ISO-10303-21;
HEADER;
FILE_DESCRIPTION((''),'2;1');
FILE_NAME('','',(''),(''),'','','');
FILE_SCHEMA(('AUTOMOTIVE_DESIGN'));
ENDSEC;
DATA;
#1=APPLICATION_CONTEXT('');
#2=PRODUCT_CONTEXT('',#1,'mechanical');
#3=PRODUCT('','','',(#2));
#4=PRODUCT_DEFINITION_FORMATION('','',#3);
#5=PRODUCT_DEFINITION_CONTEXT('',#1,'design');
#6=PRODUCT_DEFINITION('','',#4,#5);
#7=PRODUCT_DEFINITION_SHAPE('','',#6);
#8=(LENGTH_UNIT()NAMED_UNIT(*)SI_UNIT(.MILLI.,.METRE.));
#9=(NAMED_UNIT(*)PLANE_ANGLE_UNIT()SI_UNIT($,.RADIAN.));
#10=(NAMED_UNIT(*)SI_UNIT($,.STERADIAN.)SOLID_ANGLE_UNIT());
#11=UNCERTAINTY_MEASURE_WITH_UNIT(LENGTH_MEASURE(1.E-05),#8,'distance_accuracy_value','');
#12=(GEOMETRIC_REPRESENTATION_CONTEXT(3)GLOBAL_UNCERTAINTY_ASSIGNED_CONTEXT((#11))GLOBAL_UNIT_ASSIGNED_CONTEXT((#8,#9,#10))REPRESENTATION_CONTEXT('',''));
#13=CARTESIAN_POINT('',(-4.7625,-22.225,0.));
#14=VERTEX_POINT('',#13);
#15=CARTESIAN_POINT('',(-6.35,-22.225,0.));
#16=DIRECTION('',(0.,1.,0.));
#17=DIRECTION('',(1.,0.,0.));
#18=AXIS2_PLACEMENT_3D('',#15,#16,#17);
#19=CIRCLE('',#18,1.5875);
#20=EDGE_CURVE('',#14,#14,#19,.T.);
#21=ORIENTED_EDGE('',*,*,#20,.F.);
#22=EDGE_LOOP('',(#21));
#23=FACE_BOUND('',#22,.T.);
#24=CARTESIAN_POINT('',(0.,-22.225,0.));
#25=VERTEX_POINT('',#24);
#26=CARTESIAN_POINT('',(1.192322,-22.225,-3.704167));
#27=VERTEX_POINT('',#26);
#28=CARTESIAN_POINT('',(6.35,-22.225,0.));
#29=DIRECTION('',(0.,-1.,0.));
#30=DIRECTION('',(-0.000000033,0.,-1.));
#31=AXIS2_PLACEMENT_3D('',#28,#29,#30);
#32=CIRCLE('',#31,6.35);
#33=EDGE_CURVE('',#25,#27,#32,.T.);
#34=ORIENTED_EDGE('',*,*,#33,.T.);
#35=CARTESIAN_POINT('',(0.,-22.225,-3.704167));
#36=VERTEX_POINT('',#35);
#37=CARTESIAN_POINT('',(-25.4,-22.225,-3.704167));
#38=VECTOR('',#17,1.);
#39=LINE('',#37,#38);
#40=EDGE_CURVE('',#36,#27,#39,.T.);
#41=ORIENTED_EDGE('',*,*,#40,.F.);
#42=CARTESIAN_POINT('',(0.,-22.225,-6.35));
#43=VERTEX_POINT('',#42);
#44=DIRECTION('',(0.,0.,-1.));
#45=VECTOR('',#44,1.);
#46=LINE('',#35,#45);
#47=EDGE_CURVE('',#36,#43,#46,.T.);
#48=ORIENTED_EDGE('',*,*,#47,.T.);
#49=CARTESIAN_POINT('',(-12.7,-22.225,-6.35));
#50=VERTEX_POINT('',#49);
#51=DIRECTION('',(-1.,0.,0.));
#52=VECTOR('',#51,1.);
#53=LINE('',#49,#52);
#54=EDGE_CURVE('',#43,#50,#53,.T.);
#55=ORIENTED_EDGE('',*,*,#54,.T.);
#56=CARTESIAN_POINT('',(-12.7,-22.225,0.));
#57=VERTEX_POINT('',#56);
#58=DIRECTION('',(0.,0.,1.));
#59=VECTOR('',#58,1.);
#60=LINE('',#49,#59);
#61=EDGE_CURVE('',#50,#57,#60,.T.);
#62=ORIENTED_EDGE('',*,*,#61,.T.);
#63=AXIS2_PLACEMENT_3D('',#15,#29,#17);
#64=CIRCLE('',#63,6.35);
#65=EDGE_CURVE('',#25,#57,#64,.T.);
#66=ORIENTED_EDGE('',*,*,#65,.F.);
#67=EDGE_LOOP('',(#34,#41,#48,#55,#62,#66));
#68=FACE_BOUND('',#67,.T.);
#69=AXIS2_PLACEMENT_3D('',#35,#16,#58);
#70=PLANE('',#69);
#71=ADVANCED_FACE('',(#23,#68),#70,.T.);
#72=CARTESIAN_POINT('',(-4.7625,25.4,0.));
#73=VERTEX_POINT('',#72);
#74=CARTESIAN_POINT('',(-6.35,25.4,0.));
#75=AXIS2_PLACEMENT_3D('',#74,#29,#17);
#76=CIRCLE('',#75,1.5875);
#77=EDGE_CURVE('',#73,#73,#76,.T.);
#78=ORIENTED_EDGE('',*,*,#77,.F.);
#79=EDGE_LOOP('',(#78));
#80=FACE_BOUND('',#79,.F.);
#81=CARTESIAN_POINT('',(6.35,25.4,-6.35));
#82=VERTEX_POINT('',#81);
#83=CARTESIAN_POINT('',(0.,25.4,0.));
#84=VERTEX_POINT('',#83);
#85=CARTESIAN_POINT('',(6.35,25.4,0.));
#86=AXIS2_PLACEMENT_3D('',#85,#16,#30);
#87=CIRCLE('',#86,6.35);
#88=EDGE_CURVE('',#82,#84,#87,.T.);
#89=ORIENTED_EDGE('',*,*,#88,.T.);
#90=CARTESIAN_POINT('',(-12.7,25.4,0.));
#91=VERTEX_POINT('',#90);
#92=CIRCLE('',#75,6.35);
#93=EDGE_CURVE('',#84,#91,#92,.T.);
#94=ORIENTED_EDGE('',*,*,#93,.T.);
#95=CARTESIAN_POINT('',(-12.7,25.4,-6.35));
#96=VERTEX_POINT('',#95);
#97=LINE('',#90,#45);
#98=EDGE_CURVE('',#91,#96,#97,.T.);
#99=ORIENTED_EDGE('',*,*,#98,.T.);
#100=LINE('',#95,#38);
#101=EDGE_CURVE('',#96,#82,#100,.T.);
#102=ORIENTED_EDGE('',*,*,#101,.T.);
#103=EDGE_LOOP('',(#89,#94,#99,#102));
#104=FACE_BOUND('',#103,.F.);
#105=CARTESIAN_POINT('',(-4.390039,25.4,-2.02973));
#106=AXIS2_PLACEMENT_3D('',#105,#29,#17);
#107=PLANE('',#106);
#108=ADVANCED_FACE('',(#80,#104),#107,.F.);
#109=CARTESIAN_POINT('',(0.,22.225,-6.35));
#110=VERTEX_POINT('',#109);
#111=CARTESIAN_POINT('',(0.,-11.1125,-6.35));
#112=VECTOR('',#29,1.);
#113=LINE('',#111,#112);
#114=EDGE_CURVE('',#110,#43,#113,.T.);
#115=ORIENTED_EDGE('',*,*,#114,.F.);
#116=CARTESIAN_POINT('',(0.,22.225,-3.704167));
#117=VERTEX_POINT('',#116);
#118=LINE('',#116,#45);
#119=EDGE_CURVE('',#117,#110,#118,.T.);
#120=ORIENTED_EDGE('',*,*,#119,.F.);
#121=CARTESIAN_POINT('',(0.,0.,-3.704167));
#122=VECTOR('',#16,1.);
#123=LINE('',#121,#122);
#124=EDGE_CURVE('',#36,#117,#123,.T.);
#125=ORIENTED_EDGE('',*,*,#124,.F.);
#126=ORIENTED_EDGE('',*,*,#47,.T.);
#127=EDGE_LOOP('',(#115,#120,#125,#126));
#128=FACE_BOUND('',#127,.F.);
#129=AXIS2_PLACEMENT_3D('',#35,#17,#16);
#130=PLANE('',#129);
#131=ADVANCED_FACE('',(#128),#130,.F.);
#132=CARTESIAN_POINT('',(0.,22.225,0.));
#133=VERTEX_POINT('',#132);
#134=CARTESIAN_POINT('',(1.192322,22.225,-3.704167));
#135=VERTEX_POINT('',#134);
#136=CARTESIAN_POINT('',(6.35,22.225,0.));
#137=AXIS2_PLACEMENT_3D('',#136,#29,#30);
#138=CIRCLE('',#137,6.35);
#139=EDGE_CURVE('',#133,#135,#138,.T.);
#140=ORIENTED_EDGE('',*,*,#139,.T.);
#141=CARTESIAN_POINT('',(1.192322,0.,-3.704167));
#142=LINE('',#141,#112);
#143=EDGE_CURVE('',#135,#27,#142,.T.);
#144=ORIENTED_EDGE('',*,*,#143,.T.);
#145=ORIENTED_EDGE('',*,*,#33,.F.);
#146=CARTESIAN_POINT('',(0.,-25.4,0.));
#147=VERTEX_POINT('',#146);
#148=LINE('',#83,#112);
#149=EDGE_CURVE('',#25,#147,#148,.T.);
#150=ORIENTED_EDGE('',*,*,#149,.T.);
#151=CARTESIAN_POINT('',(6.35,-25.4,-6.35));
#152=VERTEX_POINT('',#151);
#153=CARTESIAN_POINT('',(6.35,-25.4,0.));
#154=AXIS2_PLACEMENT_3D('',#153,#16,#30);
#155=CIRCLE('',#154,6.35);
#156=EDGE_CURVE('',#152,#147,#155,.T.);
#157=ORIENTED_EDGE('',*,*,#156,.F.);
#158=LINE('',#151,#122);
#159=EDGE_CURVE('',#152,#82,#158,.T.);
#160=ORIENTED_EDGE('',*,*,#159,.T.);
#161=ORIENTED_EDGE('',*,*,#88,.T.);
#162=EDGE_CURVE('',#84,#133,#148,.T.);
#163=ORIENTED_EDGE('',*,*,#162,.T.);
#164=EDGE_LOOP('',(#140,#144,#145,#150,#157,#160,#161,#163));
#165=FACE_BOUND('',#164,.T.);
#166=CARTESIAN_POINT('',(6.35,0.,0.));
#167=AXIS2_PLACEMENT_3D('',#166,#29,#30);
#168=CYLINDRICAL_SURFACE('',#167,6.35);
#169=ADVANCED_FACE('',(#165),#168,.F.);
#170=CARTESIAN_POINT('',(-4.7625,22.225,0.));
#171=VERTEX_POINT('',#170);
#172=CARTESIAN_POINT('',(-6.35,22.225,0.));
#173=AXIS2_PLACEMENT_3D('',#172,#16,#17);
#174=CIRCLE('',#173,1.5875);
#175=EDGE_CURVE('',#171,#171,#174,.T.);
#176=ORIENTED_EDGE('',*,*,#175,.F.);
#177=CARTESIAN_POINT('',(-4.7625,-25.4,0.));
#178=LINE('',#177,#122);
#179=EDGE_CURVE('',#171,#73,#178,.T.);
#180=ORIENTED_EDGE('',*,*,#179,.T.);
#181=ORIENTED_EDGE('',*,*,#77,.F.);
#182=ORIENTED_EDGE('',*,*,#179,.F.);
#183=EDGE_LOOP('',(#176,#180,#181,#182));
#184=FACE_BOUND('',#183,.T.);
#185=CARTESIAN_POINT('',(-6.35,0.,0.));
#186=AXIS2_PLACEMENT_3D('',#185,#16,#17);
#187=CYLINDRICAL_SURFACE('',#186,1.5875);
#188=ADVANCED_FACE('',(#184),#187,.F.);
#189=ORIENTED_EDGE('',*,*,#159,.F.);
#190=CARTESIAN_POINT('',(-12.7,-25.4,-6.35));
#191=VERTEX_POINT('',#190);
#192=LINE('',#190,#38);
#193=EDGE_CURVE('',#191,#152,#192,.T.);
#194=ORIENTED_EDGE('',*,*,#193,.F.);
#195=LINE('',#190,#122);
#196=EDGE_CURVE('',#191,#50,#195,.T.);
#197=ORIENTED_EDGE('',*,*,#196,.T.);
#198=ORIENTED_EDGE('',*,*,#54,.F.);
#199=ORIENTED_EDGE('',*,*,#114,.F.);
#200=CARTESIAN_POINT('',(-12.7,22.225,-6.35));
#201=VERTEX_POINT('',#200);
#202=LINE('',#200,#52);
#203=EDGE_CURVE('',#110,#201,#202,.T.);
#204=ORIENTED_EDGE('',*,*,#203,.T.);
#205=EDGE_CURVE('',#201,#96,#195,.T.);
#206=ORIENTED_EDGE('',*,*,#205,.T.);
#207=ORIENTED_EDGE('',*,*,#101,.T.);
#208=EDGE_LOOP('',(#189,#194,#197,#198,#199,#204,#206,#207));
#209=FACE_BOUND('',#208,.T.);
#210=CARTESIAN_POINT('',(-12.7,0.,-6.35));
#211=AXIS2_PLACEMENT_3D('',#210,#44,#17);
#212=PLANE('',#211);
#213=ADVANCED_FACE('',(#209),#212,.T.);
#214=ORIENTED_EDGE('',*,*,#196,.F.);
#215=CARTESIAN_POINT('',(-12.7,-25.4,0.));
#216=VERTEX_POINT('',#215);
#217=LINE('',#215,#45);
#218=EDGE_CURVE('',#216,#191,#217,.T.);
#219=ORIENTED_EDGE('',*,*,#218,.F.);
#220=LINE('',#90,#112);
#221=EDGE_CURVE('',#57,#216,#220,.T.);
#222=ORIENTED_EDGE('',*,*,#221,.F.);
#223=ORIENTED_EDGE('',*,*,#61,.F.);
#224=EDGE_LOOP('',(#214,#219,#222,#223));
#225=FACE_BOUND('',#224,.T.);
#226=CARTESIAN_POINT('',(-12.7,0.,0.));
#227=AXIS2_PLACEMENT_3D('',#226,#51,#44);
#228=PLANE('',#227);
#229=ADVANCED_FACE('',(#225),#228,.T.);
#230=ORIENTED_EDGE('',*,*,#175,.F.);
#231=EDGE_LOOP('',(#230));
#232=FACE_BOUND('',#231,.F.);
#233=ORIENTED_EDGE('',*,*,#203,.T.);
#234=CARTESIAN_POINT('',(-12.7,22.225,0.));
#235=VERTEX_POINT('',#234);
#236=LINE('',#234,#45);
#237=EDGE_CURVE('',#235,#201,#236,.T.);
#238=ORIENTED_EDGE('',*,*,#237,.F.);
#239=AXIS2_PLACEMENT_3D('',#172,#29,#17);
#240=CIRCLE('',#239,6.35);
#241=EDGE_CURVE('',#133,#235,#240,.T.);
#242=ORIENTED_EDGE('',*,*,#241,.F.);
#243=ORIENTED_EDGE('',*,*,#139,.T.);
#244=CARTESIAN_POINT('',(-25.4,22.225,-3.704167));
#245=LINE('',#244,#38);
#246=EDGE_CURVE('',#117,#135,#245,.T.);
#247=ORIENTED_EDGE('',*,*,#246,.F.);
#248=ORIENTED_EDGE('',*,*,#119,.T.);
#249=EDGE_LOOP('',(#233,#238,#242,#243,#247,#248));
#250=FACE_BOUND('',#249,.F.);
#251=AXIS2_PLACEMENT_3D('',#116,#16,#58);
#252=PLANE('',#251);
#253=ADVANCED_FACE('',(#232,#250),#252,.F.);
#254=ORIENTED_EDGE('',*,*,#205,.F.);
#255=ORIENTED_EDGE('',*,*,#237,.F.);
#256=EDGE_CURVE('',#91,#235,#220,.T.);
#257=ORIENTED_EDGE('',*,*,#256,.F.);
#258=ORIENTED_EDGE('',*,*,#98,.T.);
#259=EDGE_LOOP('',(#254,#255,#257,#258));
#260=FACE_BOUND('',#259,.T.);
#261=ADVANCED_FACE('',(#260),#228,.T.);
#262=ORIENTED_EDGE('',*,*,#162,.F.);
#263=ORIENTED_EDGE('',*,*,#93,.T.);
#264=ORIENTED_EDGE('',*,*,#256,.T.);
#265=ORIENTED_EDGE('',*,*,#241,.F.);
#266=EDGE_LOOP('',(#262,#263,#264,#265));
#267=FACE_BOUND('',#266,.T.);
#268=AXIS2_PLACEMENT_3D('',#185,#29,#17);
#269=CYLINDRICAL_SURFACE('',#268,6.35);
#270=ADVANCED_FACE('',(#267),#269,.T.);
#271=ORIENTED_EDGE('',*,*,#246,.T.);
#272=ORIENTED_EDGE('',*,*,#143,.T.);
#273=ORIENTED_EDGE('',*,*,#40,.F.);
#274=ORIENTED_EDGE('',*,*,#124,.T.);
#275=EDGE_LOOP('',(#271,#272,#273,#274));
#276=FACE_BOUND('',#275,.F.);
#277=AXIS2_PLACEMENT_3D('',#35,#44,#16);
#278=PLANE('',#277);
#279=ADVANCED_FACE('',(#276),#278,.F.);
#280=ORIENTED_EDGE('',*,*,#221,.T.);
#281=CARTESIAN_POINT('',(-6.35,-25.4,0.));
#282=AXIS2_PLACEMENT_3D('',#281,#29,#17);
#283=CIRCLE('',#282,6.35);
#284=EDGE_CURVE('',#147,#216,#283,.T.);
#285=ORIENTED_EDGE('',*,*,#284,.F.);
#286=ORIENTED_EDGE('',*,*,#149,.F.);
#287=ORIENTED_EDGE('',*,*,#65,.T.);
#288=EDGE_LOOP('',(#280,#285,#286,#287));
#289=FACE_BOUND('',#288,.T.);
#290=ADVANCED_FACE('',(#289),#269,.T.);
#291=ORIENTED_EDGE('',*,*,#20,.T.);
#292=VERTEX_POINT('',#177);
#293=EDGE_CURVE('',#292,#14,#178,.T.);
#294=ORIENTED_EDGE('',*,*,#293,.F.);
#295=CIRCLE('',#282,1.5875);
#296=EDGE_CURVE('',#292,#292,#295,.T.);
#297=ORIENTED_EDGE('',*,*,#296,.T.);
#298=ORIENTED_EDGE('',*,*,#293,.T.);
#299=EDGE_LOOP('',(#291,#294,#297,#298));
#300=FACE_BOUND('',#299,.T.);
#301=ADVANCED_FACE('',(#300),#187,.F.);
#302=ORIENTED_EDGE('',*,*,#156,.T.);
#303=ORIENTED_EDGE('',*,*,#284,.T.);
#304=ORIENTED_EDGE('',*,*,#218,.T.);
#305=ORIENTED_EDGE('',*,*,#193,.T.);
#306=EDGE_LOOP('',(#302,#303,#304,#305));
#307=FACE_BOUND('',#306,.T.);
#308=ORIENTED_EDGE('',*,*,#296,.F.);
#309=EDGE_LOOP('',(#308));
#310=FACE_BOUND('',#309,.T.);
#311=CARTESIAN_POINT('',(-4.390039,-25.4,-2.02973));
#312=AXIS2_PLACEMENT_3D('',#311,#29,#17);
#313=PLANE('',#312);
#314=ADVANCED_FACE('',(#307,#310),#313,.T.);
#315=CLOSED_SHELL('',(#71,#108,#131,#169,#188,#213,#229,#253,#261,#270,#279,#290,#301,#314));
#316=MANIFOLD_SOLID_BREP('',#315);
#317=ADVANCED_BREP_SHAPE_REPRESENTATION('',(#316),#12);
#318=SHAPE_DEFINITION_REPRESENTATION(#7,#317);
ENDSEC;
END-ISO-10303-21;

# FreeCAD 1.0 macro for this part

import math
import FreeCAD as App
import Part
import Sketcher
from FreeCAD import Vector
Q = App.Units.Quantity

doc = App.newDocument("Part")
body = doc.addObject("PartDesign::Body", "Body")

# Sketch on XZ plane
sketch1 = body.newObject("Sketcher::SketchObject", "Sketch")
sketch1.AttachmentSupport = (doc.getObject("XZ_Plane"), [""])
sketch1.MapMode = "FlatFace"
sketch1.addGeometry(Part.ArcOfCircle(Part.Circle(Vector(6.4, 0, 0), Vector(0, 0, 1), 6.4), math.radians(-180), math.radians(-90)), False)
sketch1.addGeometry(Part.ArcOfCircle(Part.Circle(Vector(-6.3, 0, 0), Vector(0, 0, 1), 6.3), math.radians(0), math.radians(180)), False)
sketch1.addGeometry(Part.LineSegment(Vector(-12.7, 0, 0), Vector(-12.7, -6.3, 0)), False)
sketch1.addGeometry(Part.LineSegment(Vector(-12.7, -6.3, 0), Vector(6.3, -6.3, 0)), False)
sketch1.addGeometry(Part.Circle(Vector(-6.3, 0, 0), Vector(0, 0, 1), 1.6), False)
sketch1.addConstraint(Sketcher.Constraint("Tangent", 0, 1, 1, 1))
sketch1.addConstraint(Sketcher.Constraint("Tangent", 1, 2, 2, 1))
sketch1.addConstraint(Sketcher.Constraint("Coincident", 2, 2, 3, 1))
sketch1.addConstraint(Sketcher.Constraint("Tangent", 3, 2, 0, 2))
sketch1.addConstraint(Sketcher.Constraint("Vertical", 2))
sketch1.addConstraint(Sketcher.Constraint("Horizontal", 3))
sketch1.addConstraint(Sketcher.Constraint("Coincident", 0, 1, -1, 1))
sketch1.addConstraint(Sketcher.Constraint("Coincident", 4, 3, 1, 3))
sketch1.addConstraint(Sketcher.Constraint("Equal", 0, 1))
sketch1.addConstraint(Sketcher.Constraint("PointOnObject", 0, 3, -1))
sketch1.addConstraint(Sketcher.Constraint("Radius", 0, Q("0.25 in")))
sketch1.addConstraint(Sketcher.Constraint("Diameter", 4, Q("0.125 in")))
pad1 = body.newObject("PartDesign::Pad", "Pad")
pad1.Profile = sketch1
pad1.Length = Q("2 in")
pad1.Midplane = True

# Sketch on YZ plane
sketch2 = body.newObject("Sketcher::SketchObject", "Sketch001")
sketch2.AttachmentSupport = (doc.getObject("YZ_Plane"), [""])
sketch2.MapMode = "FlatFace"
sketch2.addGeometry(Part.LineSegment(Vector(-22, 7, 0), Vector(-22, -4, 0)), False)
sketch2.addGeometry(Part.LineSegment(Vector(-22, -4, 0), Vector(22, -4, 0)), False)
sketch2.addGeometry(Part.LineSegment(Vector(22, -4, 0), Vector(22, 7, 0)), False)
sketch2.addGeometry(Part.LineSegment(Vector(22, 7, 0), Vector(-22, 7, 0)), False)
sketch2.addConstraint(Sketcher.Constraint("Coincident", 0, 2, 1, 1))
sketch2.addConstraint(Sketcher.Constraint("Coincident", 1, 2, 2, 1))
sketch2.addConstraint(Sketcher.Constraint("Coincident", 2, 2, 3, 1))
sketch2.addConstraint(Sketcher.Constraint("Coincident", 3, 2, 0, 1))
sketch2.addConstraint(Sketcher.Constraint("Vertical", 0))
sketch2.addConstraint(Sketcher.Constraint("Horizontal", 1))
sketch2.addConstraint(Sketcher.Constraint("Vertical", 2))
sketch2.addConstraint(Sketcher.Constraint("Horizontal", 3))
sketch2.addConstraint(Sketcher.Constraint("DistanceX", 1, 1, 1, 2, Q("1.75 in")))
sketch2.addConstraint(Sketcher.Constraint("DistanceY", 0, 2, 0, 1, Q("0.4375 in")))
sketch2.addConstraint(Sketcher.Constraint("DistanceX", 0, 2, -1, 1, Q("0.875 in")))
sketch2.addConstraint(Sketcher.Constraint("DistanceY", 0, 2, -1, 1, 3.704167))
pocket1 = body.newObject("PartDesign::Pocket", "Pocket")
pocket1.Profile = sketch2
pocket1.Length = Q("2 in")
pocket1.Midplane = True

# Sketch on XY plane
sketch3 = body.newObject("Sketcher::SketchObject", "Sketch002")
sketch3.AttachmentSupport = (doc.getObject("XY_Plane"), [""])
sketch3.MapMode = "FlatFace"
sketch3.AttachmentOffset = App.Placement(Vector(0, 0, -3.704167), App.Rotation())
sketch3.addGeometry(Part.LineSegment(Vector(-13, 22, 0), Vector(-13, -22, 0)), False)
sketch3.addGeometry(Part.LineSegment(Vector(-13, -22, 0), Vector(0, -22, 0)), False)
sketch3.addGeometry(Part.LineSegment(Vector(0, -22, 0), Vector(0, 22, 0)), False)
sketch3.addGeometry(Part.LineSegment(Vector(0, 22, 0), Vector(-13, 22, 0)), False)
sketch3.addConstraint(Sketcher.Constraint("Coincident", 0, 2, 1, 1))
sketch3.addConstraint(Sketcher.Constraint("Coincident", 1, 2, 2, 1))
sketch3.addConstraint(Sketcher.Constraint("Coincident", 2, 2, 3, 1))
sketch3.addConstraint(Sketcher.Constraint("Coincident", 3, 2, 0, 1))
sketch3.addConstraint(Sketcher.Constraint("Vertical", 0))
sketch3.addConstraint(Sketcher.Constraint("Horizontal", 1))
sketch3.addConstraint(Sketcher.Constraint("Vertical", 2))
sketch3.addConstraint(Sketcher.Constraint("Horizontal", 3))
sketch3.addConstraint(Sketcher.Constraint("Symmetric", 1, 2, 2, 2, -1, 1))
sketch3.addConstraint(Sketcher.Constraint("DistanceX", 1, 1, 1, 2, Q("0.5 in")))
sketch3.addConstraint(Sketcher.Constraint("DistanceY", 0, 2, 0, 1, Q("1.75 in")))
pocket2 = body.newObject("PartDesign::Pocket", "Pocket001")
pocket2.Profile = sketch3
pocket2.Type = "ThroughAll"

doc.recompute()
